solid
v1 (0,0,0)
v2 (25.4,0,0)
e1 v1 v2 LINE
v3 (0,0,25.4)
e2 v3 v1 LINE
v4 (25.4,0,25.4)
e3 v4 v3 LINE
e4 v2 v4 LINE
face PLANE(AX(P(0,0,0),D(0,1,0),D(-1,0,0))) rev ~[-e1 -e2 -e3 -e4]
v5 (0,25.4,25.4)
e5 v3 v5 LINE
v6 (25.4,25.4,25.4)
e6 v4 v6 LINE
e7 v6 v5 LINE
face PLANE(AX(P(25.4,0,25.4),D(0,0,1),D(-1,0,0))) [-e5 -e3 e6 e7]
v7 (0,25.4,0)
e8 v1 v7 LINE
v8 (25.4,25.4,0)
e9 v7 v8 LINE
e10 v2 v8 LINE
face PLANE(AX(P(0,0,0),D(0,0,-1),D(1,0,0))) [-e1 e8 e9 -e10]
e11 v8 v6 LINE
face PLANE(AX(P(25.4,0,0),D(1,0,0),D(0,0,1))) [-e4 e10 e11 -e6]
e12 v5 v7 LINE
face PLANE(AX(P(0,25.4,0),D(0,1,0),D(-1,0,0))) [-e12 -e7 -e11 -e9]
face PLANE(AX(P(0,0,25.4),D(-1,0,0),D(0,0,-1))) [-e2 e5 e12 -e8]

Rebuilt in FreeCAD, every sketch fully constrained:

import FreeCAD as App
import Part
import Sketcher
from FreeCAD import Vector
Q = App.Units.Quantity

doc = App.newDocument("Part")
body = doc.addObject("PartDesign::Body", "Body")

# Sketch on XZ plane
sketch1 = body.newObject("Sketcher::SketchObject", "Sketch")
sketch1.AttachmentSupport = (doc.getObject("XZ_Plane"), [""])
sketch1.MapMode = "FlatFace"
sketch1.addGeometry([
    Part.LineSegment(Vector(25.4, 0, 0), Vector(0, 0, 0)),
    Part.LineSegment(Vector(0, 0, 0), Vector(0, 25.4, 0)),
    Part.LineSegment(Vector(0, 25.4, 0), Vector(25.4, 25.4, 0)),
    Part.LineSegment(Vector(25.4, 25.4, 0), Vector(25.4, 0, 0)),
], False)
sketch1.addConstraint([
    Sketcher.Constraint("Coincident", 0, 2, 1, 1),
    Sketcher.Constraint("Coincident", 1, 2, 2, 1),
    Sketcher.Constraint("Coincident", 2, 2, 3, 1),
    Sketcher.Constraint("Coincident", 3, 2, 0, 1),
    Sketcher.Constraint("Horizontal", 0),
    Sketcher.Constraint("Vertical", 1),
    Sketcher.Constraint("Horizontal", 2),
    Sketcher.Constraint("Vertical", 3),
    Sketcher.Constraint("Coincident", 0, 2, -1, 1),
    Sketcher.Constraint("Equal", 2, 1),
    Sketcher.Constraint("DistanceX", 0, 2, 0, 1, Q("1 in")),
])
pad1 = body.newObject("PartDesign::Pad", "Pad")
pad1.Profile = sketch1
pad1.Length = Q("1 in")
pad1.Reversed = True

doc.recompute()
